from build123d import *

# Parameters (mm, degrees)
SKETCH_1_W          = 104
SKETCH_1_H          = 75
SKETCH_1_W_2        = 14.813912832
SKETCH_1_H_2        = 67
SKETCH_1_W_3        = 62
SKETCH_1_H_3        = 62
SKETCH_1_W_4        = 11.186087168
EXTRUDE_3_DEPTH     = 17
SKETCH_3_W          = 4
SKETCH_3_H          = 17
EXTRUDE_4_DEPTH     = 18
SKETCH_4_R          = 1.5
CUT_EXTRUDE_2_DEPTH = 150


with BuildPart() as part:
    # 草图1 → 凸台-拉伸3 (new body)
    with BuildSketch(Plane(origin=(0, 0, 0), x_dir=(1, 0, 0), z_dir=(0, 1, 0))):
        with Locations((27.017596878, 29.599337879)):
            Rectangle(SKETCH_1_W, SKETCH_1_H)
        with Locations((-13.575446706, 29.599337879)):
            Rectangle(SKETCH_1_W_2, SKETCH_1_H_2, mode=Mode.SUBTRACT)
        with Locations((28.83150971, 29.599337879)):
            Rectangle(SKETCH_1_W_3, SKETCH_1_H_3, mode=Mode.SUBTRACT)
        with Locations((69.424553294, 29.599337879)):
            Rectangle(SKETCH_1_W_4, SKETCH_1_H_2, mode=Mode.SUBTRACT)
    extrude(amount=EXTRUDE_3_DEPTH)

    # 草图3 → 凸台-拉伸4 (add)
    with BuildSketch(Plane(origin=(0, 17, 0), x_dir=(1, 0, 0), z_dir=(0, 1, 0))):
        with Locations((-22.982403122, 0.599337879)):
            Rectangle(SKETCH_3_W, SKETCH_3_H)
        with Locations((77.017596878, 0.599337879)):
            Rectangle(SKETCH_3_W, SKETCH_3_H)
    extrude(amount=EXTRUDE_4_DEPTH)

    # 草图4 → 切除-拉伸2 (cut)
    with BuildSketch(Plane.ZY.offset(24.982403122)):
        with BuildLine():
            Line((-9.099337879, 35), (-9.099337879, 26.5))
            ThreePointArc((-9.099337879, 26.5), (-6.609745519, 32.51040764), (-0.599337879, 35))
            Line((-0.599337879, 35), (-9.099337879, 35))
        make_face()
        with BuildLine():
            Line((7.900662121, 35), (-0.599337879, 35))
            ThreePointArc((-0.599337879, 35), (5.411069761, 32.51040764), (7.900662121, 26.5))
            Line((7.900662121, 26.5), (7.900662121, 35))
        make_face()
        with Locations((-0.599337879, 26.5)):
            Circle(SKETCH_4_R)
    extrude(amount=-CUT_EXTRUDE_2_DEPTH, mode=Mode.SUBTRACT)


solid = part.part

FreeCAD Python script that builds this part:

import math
import FreeCAD as App
import Part
import Sketcher

V = App.Vector

doc = App.newDocument("Part")
body = doc.addObject("PartDesign::Body", "Body")

sketch1 = doc.addObject("Sketcher::SketchObject", "Sketch")
body.addObject(sketch1)
sketch1.AttachmentSupport = (doc.XZ_Plane, [""])
sketch1.MapMode = "FlatFace"
sketch1.addGeometry(Part.LineSegment(V(-25, -67, 0), V(-25, 8, 0)), False)
sketch1.addGeometry(Part.LineSegment(V(-25, 8, 0), V(79, 8, 0)), False)
sketch1.addGeometry(Part.LineSegment(V(79, 8, 0), V(79, -67, 0)), False)
sketch1.addGeometry(Part.LineSegment(V(79, -67, 0), V(-25, -67, 0)), False)
sketch1.addGeometry(Part.LineSegment(V(-6, 4, 0), V(-21, 4, 0)), False)
sketch1.addGeometry(Part.LineSegment(V(-21, 4, 0), V(-21, -63, 0)), False)
sketch1.addGeometry(Part.LineSegment(V(-21, -63, 0), V(-6, -63, 0)), False)
sketch1.addGeometry(Part.LineSegment(V(-6, -63, 0), V(-6, 4, 0)), False)
sketch1.addGeometry(Part.LineSegment(V(60, 1, 0), V(-2, 1, 0)), False)
sketch1.addGeometry(Part.LineSegment(V(-2, 1, 0), V(-2, -61, 0)), False)
sketch1.addGeometry(Part.LineSegment(V(-2, -61, 0), V(60, -61, 0)), False)
sketch1.addGeometry(Part.LineSegment(V(60, -61, 0), V(60, 1, 0)), False)
sketch1.addGeometry(Part.LineSegment(V(75, 4, 0), V(64, 4, 0)), False)
sketch1.addGeometry(Part.LineSegment(V(64, 4, 0), V(64, -63, 0)), False)
sketch1.addGeometry(Part.LineSegment(V(64, -63, 0), V(75, -63, 0)), False)
sketch1.addGeometry(Part.LineSegment(V(75, -63, 0), V(75, 4, 0)), False)
sketch1.addConstraint(Sketcher.Constraint("Coincident", 0, 2, 1, 1))
sketch1.addConstraint(Sketcher.Constraint("Coincident", 1, 2, 2, 1))
sketch1.addConstraint(Sketcher.Constraint("Coincident", 2, 2, 3, 1))
sketch1.addConstraint(Sketcher.Constraint("Coincident", 3, 2, 0, 1))
sketch1.addConstraint(Sketcher.Constraint("Coincident", 4, 2, 5, 1))
sketch1.addConstraint(Sketcher.Constraint("Coincident", 5, 2, 6, 1))
sketch1.addConstraint(Sketcher.Constraint("Coincident", 6, 2, 7, 1))
sketch1.addConstraint(Sketcher.Constraint("Coincident", 7, 2, 4, 1))
sketch1.addConstraint(Sketcher.Constraint("Coincident", 8, 2, 9, 1))
sketch1.addConstraint(Sketcher.Constraint("Coincident", 9, 2, 10, 1))
sketch1.addConstraint(Sketcher.Constraint("Coincident", 10, 2, 11, 1))
sketch1.addConstraint(Sketcher.Constraint("Coincident", 11, 2, 8, 1))
sketch1.addConstraint(Sketcher.Constraint("Coincident", 12, 2, 13, 1))
sketch1.addConstraint(Sketcher.Constraint("Coincident", 13, 2, 14, 1))
sketch1.addConstraint(Sketcher.Constraint("Coincident", 14, 2, 15, 1))
sketch1.addConstraint(Sketcher.Constraint("Coincident", 15, 2, 12, 1))
sketch1.addConstraint(Sketcher.Constraint("Vertical", 0))
sketch1.addConstraint(Sketcher.Constraint("Horizontal", 1))
sketch1.addConstraint(Sketcher.Constraint("Vertical", 2))
sketch1.addConstraint(Sketcher.Constraint("Horizontal", 3))
sketch1.addConstraint(Sketcher.Constraint("Horizontal", 4))
sketch1.addConstraint(Sketcher.Constraint("Vertical", 5))
sketch1.addConstraint(Sketcher.Constraint("Horizontal", 6))
sketch1.addConstraint(Sketcher.Constraint("Vertical", 7))
sketch1.addConstraint(Sketcher.Constraint("Horizontal", 8))
sketch1.addConstraint(Sketcher.Constraint("Vertical", 9))
sketch1.addConstraint(Sketcher.Constraint("Horizontal", 10))
sketch1.addConstraint(Sketcher.Constraint("Vertical", 11))
sketch1.addConstraint(Sketcher.Constraint("Horizontal", 12))
sketch1.addConstraint(Sketcher.Constraint("Vertical", 13))
sketch1.addConstraint(Sketcher.Constraint("Horizontal", 14))
sketch1.addConstraint(Sketcher.Constraint("Vertical", 15))
sketch1.addConstraint(Sketcher.Constraint("Horizontal", 7, 2, 12, 2))
sketch1.addConstraint(Sketcher.Constraint("Horizontal", 6, 2, 13, 2))
sketch1.addConstraint(Sketcher.Constraint("Equal", 10, 9))
sketch1.addConstraint(Sketcher.Constraint("DistanceX", 1, 1, 1, 2, 104.0))
sketch1.addConstraint(Sketcher.Constraint("DistanceX", 8, 2, 8, 1, 62.0))
sketch1.addConstraint(Sketcher.Constraint("DistanceY", 0, 1, 0, 2, 75.0))
sketch1.addConstraint(Sketcher.Constraint("DistanceY", 5, 2, 5, 1, 67.0))
sketch1.addConstraint(Sketcher.Constraint("DistanceX", 0, 2, 4, 2, 4.0))
sketch1.addConstraint(Sketcher.Constraint("DistanceY", 4, 2, 0, 2, 4.0))
sketch1.addConstraint(Sketcher.Constraint("DistanceX", 7, 2, 8, 2, 4.0))
sketch1.addConstraint(Sketcher.Constraint("DistanceX", 11, 2, 12, 2, 4.0))
sketch1.addConstraint(Sketcher.Constraint("DistanceX", 14, 2, 2, 2, 4.0))
sketch1.addConstraint(Sketcher.Constraint("DistanceY", 8, 2, 7, 2, 2.5))
sketch1.addConstraint(Sketcher.Constraint("DistanceX", 4, 2, 4, 1, 14.813913))
sketch1.addConstraint(Sketcher.Constraint("DistanceX", 6, 2, -1, 1, 6.16849))
sketch1.addConstraint(Sketcher.Constraint("DistanceY", -1, 1, 0, 2, 7.900662))
pad1 = doc.addObject("PartDesign::Pad", "Pad")
body.addObject(pad1)
pad1.Profile = sketch1
pad1.Length = 17
pad1.Reversed = True

sketch2 = doc.addObject("Sketcher::SketchObject", "Sketch001")
body.addObject(sketch2)
sketch2.AttachmentSupport = (doc.XZ_Plane, [""])
sketch2.MapMode = "FlatFace"
sketch2.AttachmentOffset = App.Placement(V(0, 0, -17), App.Rotation())
sketch2.addGeometry(Part.LineSegment(V(-25, -9.1, 0), V(-25, 7.9, 0)), False)
sketch2.addGeometry(Part.LineSegment(V(-25, 7.9, 0), V(-21, 7.9, 0)), False)
sketch2.addGeometry(Part.LineSegment(V(-21, 7.9, 0), V(-21, -9.1, 0)), False)
sketch2.addGeometry(Part.LineSegment(V(-21, -9.1, 0), V(-25, -9.1, 0)), False)
sketch2.addGeometry(Part.LineSegment(V(75, -9.1, 0), V(75, 7.9, 0)), False)
sketch2.addGeometry(Part.LineSegment(V(75, 7.9, 0), V(79, 7.9, 0)), False)
sketch2.addGeometry(Part.LineSegment(V(79, 7.9, 0), V(79, -9.1, 0)), False)
sketch2.addGeometry(Part.LineSegment(V(79, -9.1, 0), V(75, -9.1, 0)), False)
sketch2.addConstraint(Sketcher.Constraint("Coincident", 0, 2, 1, 1))
sketch2.addConstraint(Sketcher.Constraint("Coincident", 1, 2, 2, 1))
sketch2.addConstraint(Sketcher.Constraint("Coincident", 2, 2, 3, 1))
sketch2.addConstraint(Sketcher.Constraint("Coincident", 3, 2, 0, 1))
sketch2.addConstraint(Sketcher.Constraint("Coincident", 4, 2, 5, 1))
sketch2.addConstraint(Sketcher.Constraint("Coincident", 5, 2, 6, 1))
sketch2.addConstraint(Sketcher.Constraint("Coincident", 6, 2, 7, 1))
sketch2.addConstraint(Sketcher.Constraint("Coincident", 7, 2, 4, 1))
sketch2.addConstraint(Sketcher.Constraint("Vertical", 0))
sketch2.addConstraint(Sketcher.Constraint("Horizontal", 1))
sketch2.addConstraint(Sketcher.Constraint("Vertical", 2))
sketch2.addConstraint(Sketcher.Constraint("Horizontal", 3))
sketch2.addConstraint(Sketcher.Constraint("Vertical", 4))
sketch2.addConstraint(Sketcher.Constraint("Horizontal", 5))
sketch2.addConstraint(Sketcher.Constraint("Vertical", 6))
sketch2.addConstraint(Sketcher.Constraint("Horizontal", 7))
sketch2.addConstraint(Sketcher.Constraint("Horizontal", 1, 2, 4, 2))
sketch2.addConstraint(Sketcher.Constraint("Horizontal", 3, 2, 6, 2))
sketch2.addConstraint(Sketcher.Constraint("Equal", 3, 5))
sketch2.addConstraint(Sketcher.Constraint("DistanceX", 1, 1, 1, 2, 4.0))
sketch2.addConstraint(Sketcher.Constraint("DistanceY", 0, 1, 0, 2, 17.0))
sketch2.addConstraint(Sketcher.Constraint("DistanceX", 1, 2, 4, 2, 96.0))
sketch2.addConstraint(Sketcher.Constraint("DistanceX", 0, 2, -1, 1, 24.982403))
sketch2.addConstraint(Sketcher.Constraint("DistanceY", -1, 1, 0, 2, 7.900662))
pad2 = doc.addObject("PartDesign::Pad", "Pad001")
body.addObject(pad2)
pad2.Profile = sketch2
pad2.Length = 18
pad2.Reversed = True

sketch3 = doc.addObject("Sketcher::SketchObject", "Sketch002")
body.addObject(sketch3)
sketch3.AttachmentSupport = (doc.YZ_Plane, [""])
sketch3.MapMode = "FlatFace"
sketch3.AttachmentOffset = App.Placement(V(0, 0, -24.982403), App.Rotation())
sketch3.addGeometry(Part.LineSegment(V(35, -9.1, 0), V(26.5, -9.1, 0)), False)
sketch3.addGeometry(Part.ArcOfCircle(Part.Circle(V(26.5, -0.6, 0), V(0, 0, 1), 8.5), math.radians(-90), math.radians(0)), False)
sketch3.addGeometry(Part.LineSegment(V(35, -0.6, 0), V(35, -9.1, 0)), False)
sketch3.addGeometry(Part.LineSegment(V(35, 7.9, 0), V(35, -0.6, 0)), False)
sketch3.addGeometry(Part.ArcOfCircle(Part.Circle(V(26.5, -0.6, 0), V(0, 0, 1), 8.5), math.radians(0), math.radians(90)), False)
sketch3.addGeometry(Part.LineSegment(V(26.5, 7.9, 0), V(35, 7.9, 0)), False)
sketch3.addGeometry(Part.Circle(V(26.5, -0.6, 0), V(0, 0, 1), 1.5), False)
sketch3.addConstraint(Sketcher.Constraint("Tangent", 0, 2, 1, 1))
sketch3.addConstraint(Sketcher.Constraint("Tangent", 1, 2, 2, 1))
sketch3.addConstraint(Sketcher.Constraint("Coincident", 2, 2, 0, 1))
sketch3.addConstraint(Sketcher.Constraint("Tangent", 3, 2, 4, 1))
sketch3.addConstraint(Sketcher.Constraint("Tangent", 4, 2, 5, 1))
sketch3.addConstraint(Sketcher.Constraint("Coincident", 5, 2, 3, 1))
sketch3.addConstraint(Sketcher.Constraint("Horizontal", 0))
sketch3.addConstraint(Sketcher.Constraint("Vertical", 2))
sketch3.addConstraint(Sketcher.Constraint("Vertical", 3))
sketch3.addConstraint(Sketcher.Constraint("Horizontal", 5))
sketch3.addConstraint(Sketcher.Constraint("Coincident", 4, 3, 1, 3))
sketch3.addConstraint(Sketcher.Constraint("Coincident", 6, 3, 1, 3))
sketch3.addConstraint(Sketcher.Constraint("Equal", 1, 4))
sketch3.addConstraint(Sketcher.Constraint("Diameter", 6, 3.0))
sketch3.addConstraint(Sketcher.Constraint("Radius", 1, 8.5))
sketch3.addConstraint(Sketcher.Constraint("DistanceX", -1, 1, 1, 2, 35.0))
sketch3.addConstraint(Sketcher.Constraint("DistanceY", 1, 3, -1, 1, 0.599338))
pocket1 = doc.addObject("PartDesign::Pocket", "Pocket")
body.addObject(pocket1)
pocket1.Profile = sketch3
pocket1.Length = 150
pocket1.Reversed = True

doc.recompute()
